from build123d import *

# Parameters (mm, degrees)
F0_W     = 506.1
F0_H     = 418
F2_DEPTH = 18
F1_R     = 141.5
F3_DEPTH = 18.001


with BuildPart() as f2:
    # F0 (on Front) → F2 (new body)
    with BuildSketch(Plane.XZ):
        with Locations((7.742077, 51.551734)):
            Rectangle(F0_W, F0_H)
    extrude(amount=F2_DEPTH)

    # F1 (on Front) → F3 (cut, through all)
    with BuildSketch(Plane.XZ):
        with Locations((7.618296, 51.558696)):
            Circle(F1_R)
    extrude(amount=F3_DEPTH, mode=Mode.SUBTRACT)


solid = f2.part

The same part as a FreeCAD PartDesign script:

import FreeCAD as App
import Part
import Sketcher
from FreeCAD import Vector
Q = App.Units.Quantity

doc = App.newDocument("Part")
body = doc.addObject("PartDesign::Body", "Body")

# Sketch on XZ plane
sketch1 = doc.addObject("Sketcher::SketchObject", "Sketch")
body.addObject(sketch1)
sketch1.AttachmentSupport = (doc.XZ_Plane, [""])
sketch1.MapMode = "FlatFace"
sketch1.addGeometry(Part.LineSegment(Vector(-245, 261, 0), Vector(-245, -157, 0)), False)
sketch1.addGeometry(Part.LineSegment(Vector(-245, -157, 0), Vector(261, -157, 0)), False)
sketch1.addGeometry(Part.LineSegment(Vector(261, -157, 0), Vector(261, 261, 0)), False)
sketch1.addGeometry(Part.LineSegment(Vector(261, 261, 0), Vector(-245, 261, 0)), False)
sketch1.addConstraint(Sketcher.Constraint("Coincident", 0, 2, 1, 1))
sketch1.addConstraint(Sketcher.Constraint("Coincident", 1, 2, 2, 1))
sketch1.addConstraint(Sketcher.Constraint("Coincident", 2, 2, 3, 1))
sketch1.addConstraint(Sketcher.Constraint("Coincident", 3, 2, 0, 1))
sketch1.addConstraint(Sketcher.Constraint("Vertical", 0))
sketch1.addConstraint(Sketcher.Constraint("Horizontal", 1))
sketch1.addConstraint(Sketcher.Constraint("Vertical", 2))
sketch1.addConstraint(Sketcher.Constraint("Horizontal", 3))
sketch1.addConstraint(Sketcher.Constraint("DistanceY", 0, 2, 0, 1, Q("418 mm")))
sketch1.addConstraint(Sketcher.Constraint("DistanceX", 1, 1, 1, 2, Q("506.1 mm")))
sketch1.addConstraint(Sketcher.Constraint("DistanceX", 0, 2, -1, 1, Q("245.307923 mm")))
sketch1.addConstraint(Sketcher.Constraint("DistanceY", 0, 2, -1, 1, Q("157.448266 mm")))
pad1 = doc.addObject("PartDesign::Pad", "Pad")
body.addObject(pad1)
pad1.Profile = sketch1
pad1.Length = 18

# Sketch on XZ plane
sketch2 = doc.addObject("Sketcher::SketchObject", "Sketch001")
body.addObject(sketch2)
sketch2.AttachmentSupport = (doc.XZ_Plane, [""])
sketch2.MapMode = "FlatFace"
sketch2.addGeometry(Part.Circle(Vector(8, 52, 0), Vector(0, 0, 1), 142), False)
sketch2.addConstraint(Sketcher.Constraint("Diameter", 0, Q("283 mm")))
sketch2.addConstraint(Sketcher.Constraint("DistanceX", -1, 1, 0, 3, Q("7.618296 mm")))
sketch2.addConstraint(Sketcher.Constraint("DistanceY", -1, 1, 0, 3, Q("51.558696 mm")))
pocket1 = doc.addObject("PartDesign::Pocket", "Pocket")
body.addObject(pocket1)
pocket1.Profile = sketch2
pocket1.Type = "ThroughAll"
pocket1.Reversed = True

doc.recompute()
